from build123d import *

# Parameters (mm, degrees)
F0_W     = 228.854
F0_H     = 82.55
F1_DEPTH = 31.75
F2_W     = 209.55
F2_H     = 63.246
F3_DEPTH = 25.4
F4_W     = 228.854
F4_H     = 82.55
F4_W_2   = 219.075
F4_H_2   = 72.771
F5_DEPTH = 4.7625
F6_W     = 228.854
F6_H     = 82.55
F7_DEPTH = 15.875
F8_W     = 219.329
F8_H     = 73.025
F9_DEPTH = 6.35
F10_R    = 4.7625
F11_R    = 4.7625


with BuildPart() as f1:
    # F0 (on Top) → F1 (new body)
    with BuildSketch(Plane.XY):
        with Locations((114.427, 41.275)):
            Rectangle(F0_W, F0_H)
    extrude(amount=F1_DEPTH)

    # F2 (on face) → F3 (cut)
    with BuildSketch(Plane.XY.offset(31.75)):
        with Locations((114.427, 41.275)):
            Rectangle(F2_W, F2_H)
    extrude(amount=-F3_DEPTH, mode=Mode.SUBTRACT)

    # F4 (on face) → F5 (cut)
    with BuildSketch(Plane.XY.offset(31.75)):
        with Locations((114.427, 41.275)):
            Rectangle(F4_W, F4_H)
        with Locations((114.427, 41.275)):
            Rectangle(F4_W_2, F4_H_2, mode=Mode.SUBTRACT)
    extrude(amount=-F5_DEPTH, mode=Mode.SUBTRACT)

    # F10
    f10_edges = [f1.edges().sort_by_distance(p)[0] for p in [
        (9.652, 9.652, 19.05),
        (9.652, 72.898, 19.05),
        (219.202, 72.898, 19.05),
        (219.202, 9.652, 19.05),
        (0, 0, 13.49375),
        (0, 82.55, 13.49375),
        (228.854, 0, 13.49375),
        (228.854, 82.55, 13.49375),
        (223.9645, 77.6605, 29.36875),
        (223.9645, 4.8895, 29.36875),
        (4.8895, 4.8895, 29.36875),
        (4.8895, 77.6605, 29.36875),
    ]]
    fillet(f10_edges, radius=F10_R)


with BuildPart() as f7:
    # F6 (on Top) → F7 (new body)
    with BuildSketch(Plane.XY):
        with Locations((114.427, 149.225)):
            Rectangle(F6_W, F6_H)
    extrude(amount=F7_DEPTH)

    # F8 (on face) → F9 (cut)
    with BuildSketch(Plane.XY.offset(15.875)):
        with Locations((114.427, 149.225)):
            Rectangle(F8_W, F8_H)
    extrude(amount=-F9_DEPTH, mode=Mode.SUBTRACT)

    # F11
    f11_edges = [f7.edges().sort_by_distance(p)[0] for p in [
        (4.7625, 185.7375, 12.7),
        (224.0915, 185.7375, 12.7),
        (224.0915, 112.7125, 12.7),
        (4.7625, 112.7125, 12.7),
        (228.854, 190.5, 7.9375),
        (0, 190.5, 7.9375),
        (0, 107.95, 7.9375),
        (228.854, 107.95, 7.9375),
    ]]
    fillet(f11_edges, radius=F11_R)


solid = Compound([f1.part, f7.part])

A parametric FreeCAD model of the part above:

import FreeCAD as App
import Part
import Sketcher

V = App.Vector
Q = App.Units.Quantity


def edges_at(feature, points):
    """Names of the edges that pass closest to the given points."""
    edges = feature.Shape.Edges
    near = lambda p: min(range(len(edges)), key=lambda i: edges[i].distToShape(Part.Vertex(*p))[0])
    return sorted({f"Edge{near(p) + 1}" for p in points})


def add_polygon(sketch, points):
    """Adds a closed chain of lines whose ends are joined by coincident constraints."""
    first, n = sketch.GeometryCount, len(points)
    for a, b in zip(points, points[1:] + points[:1]):
        sketch.addGeometry(Part.LineSegment(App.Vector(*a, 0), App.Vector(*b, 0)), False)
    for i in range(n):
        sketch.addConstraint(Sketcher.Constraint("Coincident", first + i, 2, first + (i + 1) % n, 1))

doc = App.newDocument("Part")
params = doc.addObject("Spreadsheet::Sheet", "Params")
for row, (alias, value) in enumerate([
    ("sketch1_width", "9.01 in"),
    ("sketch1_height", "3.25 in"),
    ("pad1_length", "1.25 in"),
    ("sketch2_width", "8.25 in"),
    ("sketch2_height", "2.49 in"),
    ("pocket1_length", "1 in"),
    ("sketch3_width", "9.01 in"),
    ("sketch3_height", "3.25 in"),
    ("sketch3_width2", "8.625 in"),
    ("sketch3_height2", "2.865 in"),
    ("pocket2_length", "0.1875 in"),
    ("fillet_radius", "0.1875 in"),
    ("sketch4_width", "9.01 in"),
    ("sketch4_height", "3.25 in"),
    ("pad2_length", "0.625 in"),
    ("sketch5_width", "8.635 in"),
    ("sketch5_height", "2.875 in"),
    ("pocket3_length", "0.25 in"),
    ("fillet2_radius", "0.1875 in"),
], start=1):
    params.set(f"A{row}", alias)
    params.set(f"B{row}", "=" + value)
    params.setAlias(f"B{row}", alias)

body = doc.addObject("PartDesign::Body", "Body")

# Sketch on XY plane
sketch1 = body.newObject("Sketcher::SketchObject", "Sketch")
sketch1.AttachmentSupport = (doc.getObject("XY_Plane"), [""])
sketch1.MapMode = "FlatFace"
add_polygon(sketch1, [(0, 83), (0, 0), (229, 0), (229, 83)])  # lines 0-3
sketch1.addConstraint([
    Sketcher.Constraint("Vertical", 0),
    Sketcher.Constraint("Horizontal", 1),
    Sketcher.Constraint("Vertical", 2),
    Sketcher.Constraint("Horizontal", 3),
    Sketcher.Constraint("Coincident", 0, 2, -1, 1),
    Sketcher.Constraint("DistanceX", 1, 1, 1, 2, Q("9.01 in")),
    Sketcher.Constraint("DistanceY", 0, 2, 0, 1, Q("3.25 in")),
])
sketch1.setExpression("Constraints[9]", "Params.sketch1_width")
sketch1.setExpression("Constraints[10]", "Params.sketch1_height")
pad1 = body.newObject("PartDesign::Pad", "Pad")
pad1.Profile = sketch1
pad1.setExpression("Length", "Params.pad1_length")

# Sketch on XY plane
sketch2 = body.newObject("Sketcher::SketchObject", "Sketch001")
sketch2.AttachmentSupport = (doc.getObject("XY_Plane"), [""])
sketch2.MapMode = "FlatFace"
sketch2.AttachmentOffset = App.Placement(V(0, 0, 1.25 * 25.4), App.Rotation())
add_polygon(sketch2, [(10, 73), (10, 10), (219, 10), (219, 73)])  # lines 0-3
sketch2.addConstraint([
    Sketcher.Constraint("Vertical", 0),
    Sketcher.Constraint("Horizontal", 1),
    Sketcher.Constraint("Vertical", 2),
    Sketcher.Constraint("Horizontal", 3),
    Sketcher.Constraint("DistanceX", 1, 1, 1, 2, Q("8.25 in")),
    Sketcher.Constraint("DistanceY", 0, 2, 0, 1, Q("2.49 in")),
    Sketcher.Constraint("DistanceX", -1, 1, 0, 2, Q("0.38 in")),
    Sketcher.Constraint("DistanceY", -1, 1, 0, 2, Q("0.38 in")),
])
sketch2.setExpression("Constraints[8]", "Params.sketch2_width")
sketch2.setExpression("Constraints[9]", "Params.sketch2_height")
pocket1 = body.newObject("PartDesign::Pocket", "Pocket")
pocket1.Profile = sketch2
pocket1.setExpression("Length", "Params.pocket1_length")

# Sketch on XY plane
sketch3 = body.newObject("Sketcher::SketchObject", "Sketch002")
sketch3.AttachmentSupport = (doc.getObject("XY_Plane"), [""])
sketch3.MapMode = "FlatFace"
sketch3.AttachmentOffset = App.Placement(V(0, 0, 1.25 * 25.4), App.Rotation())
add_polygon(sketch3, [(0, 83), (0, 0), (229, 0), (229, 83)])  # lines 0-3
add_polygon(sketch3, [(224, 5), (5, 5), (5, 78), (224, 78)])  # lines 4-7
sketch3.addConstraint([
    Sketcher.Constraint("Vertical", 0),
    Sketcher.Constraint("Horizontal", 1),
    Sketcher.Constraint("Vertical", 2),
    Sketcher.Constraint("Horizontal", 3),
    Sketcher.Constraint("Horizontal", 4),
    Sketcher.Constraint("Vertical", 5),
    Sketcher.Constraint("Horizontal", 6),
    Sketcher.Constraint("Vertical", 7),
    Sketcher.Constraint("Coincident", 0, 2, -1, 1),
    Sketcher.Constraint("DistanceX", 1, 1, 1, 2, Q("9.01 in")),
    Sketcher.Constraint("DistanceY", 0, 2, 0, 1, Q("3.25 in")),
    Sketcher.Constraint("DistanceX", 4, 2, 4, 1, Q("8.625 in")),
    Sketcher.Constraint("DistanceY", 5, 1, 5, 2, Q("2.865 in")),
    Sketcher.Constraint("DistanceX", -1, 1, 4, 2, Q("0.1925 in")),
    Sketcher.Constraint("DistanceY", -1, 1, 4, 2, Q("0.1925 in")),
])
sketch3.setExpression("Constraints[17]", "Params.sketch3_width")
sketch3.setExpression("Constraints[18]", "Params.sketch3_height")
sketch3.setExpression("Constraints[19]", "Params.sketch3_width2")
sketch3.setExpression("Constraints[20]", "Params.sketch3_height2")
pocket2 = body.newObject("PartDesign::Pocket", "Pocket001")
pocket2.Profile = sketch3
pocket2.setExpression("Length", "Params.pocket2_length")
doc.recompute()

fillet = body.newObject("PartDesign::Fillet", "Fillet")
fillet.Base = (pocket2, edges_at(pocket2, [
    (9.652, 9.652, 19.05),
    (9.652, 72.898, 19.05),
    (219.202, 72.898, 19.05),
    (219.202, 9.652, 19.05),
    (0, 0, 13.494),
    (0, 82.55, 13.494),
    (228.854, 0, 13.494),
    (228.854, 82.55, 13.494),
    (223.964, 77.66, 29.369),
    (223.964, 4.889, 29.369),
    (4.889, 4.889, 29.369),
    (4.889, 77.66, 29.369),
]))
fillet.setExpression("Radius", "Params.fillet_radius")
body2 = doc.addObject("PartDesign::Body", "Body001")

# Sketch on XY plane
sketch4 = body2.newObject("Sketcher::SketchObject", "Sketch003")
sketch4.AttachmentSupport = (doc.getObject("XY_Plane001"), [""])
sketch4.MapMode = "FlatFace"
add_polygon(sketch4, [(0, 190), (0, 108), (229, 108), (229, 190)])  # lines 0-3
sketch4.addConstraint([
    Sketcher.Constraint("Vertical", 0),
    Sketcher.Constraint("Horizontal", 1),
    Sketcher.Constraint("Vertical", 2),
    Sketcher.Constraint("Horizontal", 3),
    Sketcher.Constraint("PointOnObject", 0, 2, -2),
    Sketcher.Constraint("DistanceX", 1, 1, 1, 2, Q("9.01 in")),
    Sketcher.Constraint("DistanceY", 0, 2, 0, 1, Q("3.25 in")),
    Sketcher.Constraint("DistanceY", -1, 1, 2, 2, Q("7.5 in")),
])
sketch4.setExpression("Constraints[9]", "Params.sketch4_width")
sketch4.setExpression("Constraints[10]", "Params.sketch4_height")
pad2 = body2.newObject("PartDesign::Pad", "Pad001")
pad2.Profile = sketch4
pad2.setExpression("Length", "Params.pad2_length")

# Sketch on XY plane
sketch5 = body2.newObject("Sketcher::SketchObject", "Sketch004")
sketch5.AttachmentSupport = (doc.getObject("XY_Plane001"), [""])
sketch5.MapMode = "FlatFace"
sketch5.AttachmentOffset = App.Placement(V(0, 0, 0.625 * 25.4), App.Rotation())
add_polygon(sketch5, [(5, 186), (5, 113), (224, 113), (224, 186)])  # lines 0-3
sketch5.addConstraint([
    Sketcher.Constraint("Vertical", 0),
    Sketcher.Constraint("Horizontal", 1),
    Sketcher.Constraint("Vertical", 2),
    Sketcher.Constraint("Horizontal", 3),
    Sketcher.Constraint("DistanceX", 1, 1, 1, 2, Q("8.635 in")),
    Sketcher.Constraint("DistanceY", 0, 2, 0, 1, Q("2.875 in")),
    Sketcher.Constraint("DistanceX", -1, 1, 0, 2, Q("0.1875 in")),
    Sketcher.Constraint("DistanceY", -1, 1, 0, 2, Q("4.4375 in")),
])
sketch5.setExpression("Constraints[8]", "Params.sketch5_width")
sketch5.setExpression("Constraints[9]", "Params.sketch5_height")
pocket3 = body2.newObject("PartDesign::Pocket", "Pocket002")
pocket3.Profile = sketch5
pocket3.setExpression("Length", "Params.pocket3_length")
doc.recompute()

fillet2 = body2.newObject("PartDesign::Fillet", "Fillet001")
fillet2.Base = (pocket3, edges_at(pocket3, [
    (4.763, 185.738, 12.7),
    (224.091, 185.738, 12.7),
    (224.091, 112.713, 12.7),
    (4.763, 112.713, 12.7),
    (228.854, 190.5, 7.938),
    (0, 190.5, 7.938),
    (0, 107.95, 7.938),
    (228.854, 107.95, 7.938),
]))
fillet2.setExpression("Radius", "Params.fillet2_radius")

doc.recompute()
